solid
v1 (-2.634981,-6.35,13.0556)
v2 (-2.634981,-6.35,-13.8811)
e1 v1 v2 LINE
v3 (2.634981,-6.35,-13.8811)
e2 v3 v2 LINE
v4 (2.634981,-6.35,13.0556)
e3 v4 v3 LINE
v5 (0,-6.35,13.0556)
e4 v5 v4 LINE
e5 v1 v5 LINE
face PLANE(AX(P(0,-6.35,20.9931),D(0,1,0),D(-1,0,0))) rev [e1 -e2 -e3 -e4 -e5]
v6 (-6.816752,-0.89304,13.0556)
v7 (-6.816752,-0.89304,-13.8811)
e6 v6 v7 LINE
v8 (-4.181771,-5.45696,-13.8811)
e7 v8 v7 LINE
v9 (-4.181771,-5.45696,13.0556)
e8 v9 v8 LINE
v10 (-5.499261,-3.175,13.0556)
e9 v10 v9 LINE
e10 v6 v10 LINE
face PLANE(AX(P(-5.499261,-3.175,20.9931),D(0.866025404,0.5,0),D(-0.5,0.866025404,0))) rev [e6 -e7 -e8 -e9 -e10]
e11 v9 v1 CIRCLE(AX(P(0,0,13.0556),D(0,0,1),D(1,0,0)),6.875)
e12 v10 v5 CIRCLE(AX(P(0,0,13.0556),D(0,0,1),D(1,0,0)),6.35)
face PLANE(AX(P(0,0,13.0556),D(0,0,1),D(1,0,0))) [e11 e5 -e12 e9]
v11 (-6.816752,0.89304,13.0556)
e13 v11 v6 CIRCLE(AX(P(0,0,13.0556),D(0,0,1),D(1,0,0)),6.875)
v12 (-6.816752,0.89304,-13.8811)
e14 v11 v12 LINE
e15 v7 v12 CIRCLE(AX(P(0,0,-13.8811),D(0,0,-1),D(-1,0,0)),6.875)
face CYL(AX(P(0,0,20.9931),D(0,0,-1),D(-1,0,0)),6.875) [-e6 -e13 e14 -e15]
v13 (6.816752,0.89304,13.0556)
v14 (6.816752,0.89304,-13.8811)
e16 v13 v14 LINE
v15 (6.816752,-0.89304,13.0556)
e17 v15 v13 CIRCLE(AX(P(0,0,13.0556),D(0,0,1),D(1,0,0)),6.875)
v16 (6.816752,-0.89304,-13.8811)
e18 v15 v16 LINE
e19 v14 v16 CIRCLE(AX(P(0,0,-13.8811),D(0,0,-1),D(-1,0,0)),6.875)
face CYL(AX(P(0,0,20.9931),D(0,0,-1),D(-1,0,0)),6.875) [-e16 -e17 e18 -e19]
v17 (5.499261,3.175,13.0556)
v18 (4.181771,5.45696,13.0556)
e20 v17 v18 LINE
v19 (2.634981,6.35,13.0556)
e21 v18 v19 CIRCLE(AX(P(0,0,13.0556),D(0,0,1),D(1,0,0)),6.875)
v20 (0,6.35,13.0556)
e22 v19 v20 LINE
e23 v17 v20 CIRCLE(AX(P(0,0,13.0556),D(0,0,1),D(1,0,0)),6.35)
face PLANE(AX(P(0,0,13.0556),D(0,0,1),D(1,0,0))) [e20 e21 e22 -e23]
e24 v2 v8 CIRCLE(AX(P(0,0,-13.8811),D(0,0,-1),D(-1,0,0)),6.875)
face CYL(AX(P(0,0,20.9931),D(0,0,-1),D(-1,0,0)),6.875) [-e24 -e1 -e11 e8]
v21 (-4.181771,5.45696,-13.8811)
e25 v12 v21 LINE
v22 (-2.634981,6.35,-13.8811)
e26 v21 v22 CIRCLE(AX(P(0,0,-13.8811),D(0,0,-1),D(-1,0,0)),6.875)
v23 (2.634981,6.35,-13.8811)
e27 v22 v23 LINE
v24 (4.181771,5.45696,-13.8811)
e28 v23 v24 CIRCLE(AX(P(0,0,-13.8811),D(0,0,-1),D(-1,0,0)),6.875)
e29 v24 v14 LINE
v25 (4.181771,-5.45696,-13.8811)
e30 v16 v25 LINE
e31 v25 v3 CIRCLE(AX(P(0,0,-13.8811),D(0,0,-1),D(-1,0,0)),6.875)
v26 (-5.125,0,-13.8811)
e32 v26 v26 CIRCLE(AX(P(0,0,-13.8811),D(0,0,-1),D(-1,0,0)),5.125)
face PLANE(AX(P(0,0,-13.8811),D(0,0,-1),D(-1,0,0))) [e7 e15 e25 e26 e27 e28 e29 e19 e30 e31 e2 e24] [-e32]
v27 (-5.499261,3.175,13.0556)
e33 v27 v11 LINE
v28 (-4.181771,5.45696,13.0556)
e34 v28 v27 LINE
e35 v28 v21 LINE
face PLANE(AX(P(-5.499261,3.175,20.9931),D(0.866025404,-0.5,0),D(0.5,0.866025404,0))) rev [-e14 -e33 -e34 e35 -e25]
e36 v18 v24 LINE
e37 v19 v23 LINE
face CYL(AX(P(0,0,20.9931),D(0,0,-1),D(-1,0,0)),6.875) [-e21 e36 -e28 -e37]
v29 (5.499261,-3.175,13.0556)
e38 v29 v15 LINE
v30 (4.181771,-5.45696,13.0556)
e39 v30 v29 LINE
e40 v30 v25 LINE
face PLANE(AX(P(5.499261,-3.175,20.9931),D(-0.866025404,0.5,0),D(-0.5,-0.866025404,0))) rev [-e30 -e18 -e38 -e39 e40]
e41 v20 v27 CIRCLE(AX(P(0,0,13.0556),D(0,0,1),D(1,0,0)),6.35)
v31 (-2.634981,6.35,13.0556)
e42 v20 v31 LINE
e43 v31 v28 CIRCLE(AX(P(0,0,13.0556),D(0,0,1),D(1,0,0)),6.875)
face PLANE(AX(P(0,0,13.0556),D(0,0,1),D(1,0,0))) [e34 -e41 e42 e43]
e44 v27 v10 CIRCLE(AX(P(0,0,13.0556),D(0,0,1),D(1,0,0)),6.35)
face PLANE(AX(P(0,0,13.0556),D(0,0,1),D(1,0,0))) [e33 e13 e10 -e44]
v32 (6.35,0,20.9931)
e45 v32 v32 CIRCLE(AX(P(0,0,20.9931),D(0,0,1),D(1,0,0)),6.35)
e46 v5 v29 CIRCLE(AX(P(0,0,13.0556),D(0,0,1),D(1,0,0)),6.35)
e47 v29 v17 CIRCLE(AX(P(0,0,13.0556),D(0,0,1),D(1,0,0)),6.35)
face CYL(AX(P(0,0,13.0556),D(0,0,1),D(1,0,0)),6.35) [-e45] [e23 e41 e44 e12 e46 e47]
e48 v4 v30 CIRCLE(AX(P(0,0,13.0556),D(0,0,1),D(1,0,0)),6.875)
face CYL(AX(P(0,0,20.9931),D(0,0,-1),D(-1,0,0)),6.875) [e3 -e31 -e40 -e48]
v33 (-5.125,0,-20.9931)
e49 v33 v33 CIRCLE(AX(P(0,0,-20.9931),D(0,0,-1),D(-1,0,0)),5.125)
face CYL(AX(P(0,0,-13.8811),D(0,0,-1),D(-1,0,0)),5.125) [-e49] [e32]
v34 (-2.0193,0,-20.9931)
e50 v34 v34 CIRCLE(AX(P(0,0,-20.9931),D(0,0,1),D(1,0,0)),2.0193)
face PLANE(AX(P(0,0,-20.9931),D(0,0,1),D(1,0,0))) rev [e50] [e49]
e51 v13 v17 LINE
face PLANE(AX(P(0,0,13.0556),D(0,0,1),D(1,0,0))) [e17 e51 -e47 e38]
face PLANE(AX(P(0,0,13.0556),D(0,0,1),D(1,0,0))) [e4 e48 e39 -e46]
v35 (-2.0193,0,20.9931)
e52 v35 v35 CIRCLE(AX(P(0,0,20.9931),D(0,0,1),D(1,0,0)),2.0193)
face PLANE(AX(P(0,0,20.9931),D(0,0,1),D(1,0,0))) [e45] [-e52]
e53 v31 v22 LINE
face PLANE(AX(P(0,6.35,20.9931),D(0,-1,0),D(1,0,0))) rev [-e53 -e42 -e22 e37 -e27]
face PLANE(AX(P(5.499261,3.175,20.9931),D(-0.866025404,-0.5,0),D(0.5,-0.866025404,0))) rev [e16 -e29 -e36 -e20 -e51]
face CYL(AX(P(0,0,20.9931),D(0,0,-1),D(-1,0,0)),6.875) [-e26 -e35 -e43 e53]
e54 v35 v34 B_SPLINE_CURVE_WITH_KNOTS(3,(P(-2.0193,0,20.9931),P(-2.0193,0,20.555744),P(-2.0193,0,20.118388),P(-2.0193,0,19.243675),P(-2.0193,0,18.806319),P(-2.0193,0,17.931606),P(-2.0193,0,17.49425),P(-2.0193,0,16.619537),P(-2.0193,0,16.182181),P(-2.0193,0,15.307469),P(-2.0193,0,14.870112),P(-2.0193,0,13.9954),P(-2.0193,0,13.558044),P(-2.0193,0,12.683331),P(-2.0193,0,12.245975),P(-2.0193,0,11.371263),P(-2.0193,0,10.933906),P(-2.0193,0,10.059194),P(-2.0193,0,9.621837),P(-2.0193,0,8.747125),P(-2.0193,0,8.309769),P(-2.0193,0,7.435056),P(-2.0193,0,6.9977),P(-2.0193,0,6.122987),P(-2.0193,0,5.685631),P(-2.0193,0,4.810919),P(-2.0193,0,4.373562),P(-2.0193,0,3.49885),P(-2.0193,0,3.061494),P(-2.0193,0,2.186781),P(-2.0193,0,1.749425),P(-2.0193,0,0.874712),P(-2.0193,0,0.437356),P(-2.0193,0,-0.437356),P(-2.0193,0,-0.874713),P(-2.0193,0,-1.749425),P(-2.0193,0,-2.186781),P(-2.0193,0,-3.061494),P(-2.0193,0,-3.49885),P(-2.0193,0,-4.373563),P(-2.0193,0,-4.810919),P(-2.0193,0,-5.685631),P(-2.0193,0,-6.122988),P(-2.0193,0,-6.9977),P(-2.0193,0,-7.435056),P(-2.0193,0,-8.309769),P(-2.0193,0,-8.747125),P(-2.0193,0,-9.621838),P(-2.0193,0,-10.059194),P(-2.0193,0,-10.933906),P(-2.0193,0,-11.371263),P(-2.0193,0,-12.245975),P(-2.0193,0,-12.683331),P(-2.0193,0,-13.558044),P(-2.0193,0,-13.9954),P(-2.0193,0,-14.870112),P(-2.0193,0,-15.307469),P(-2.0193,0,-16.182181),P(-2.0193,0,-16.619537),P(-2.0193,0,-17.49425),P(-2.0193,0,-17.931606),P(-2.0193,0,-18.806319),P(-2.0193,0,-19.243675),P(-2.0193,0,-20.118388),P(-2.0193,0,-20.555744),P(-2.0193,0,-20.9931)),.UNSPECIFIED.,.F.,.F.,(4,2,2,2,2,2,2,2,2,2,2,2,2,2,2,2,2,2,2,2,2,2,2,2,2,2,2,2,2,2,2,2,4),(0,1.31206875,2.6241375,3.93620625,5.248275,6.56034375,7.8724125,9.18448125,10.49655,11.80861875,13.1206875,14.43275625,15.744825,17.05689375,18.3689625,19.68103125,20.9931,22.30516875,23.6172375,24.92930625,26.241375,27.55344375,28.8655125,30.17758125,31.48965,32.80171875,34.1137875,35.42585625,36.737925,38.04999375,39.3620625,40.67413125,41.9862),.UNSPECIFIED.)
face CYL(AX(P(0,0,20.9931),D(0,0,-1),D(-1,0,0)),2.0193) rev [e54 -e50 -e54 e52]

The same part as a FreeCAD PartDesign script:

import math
import FreeCAD as App
import Part
import Sketcher
from FreeCAD import Vector
Q = App.Units.Quantity

doc = App.newDocument("Part")
body = doc.addObject("PartDesign::Body", "Body")

# Sketch on XY plane
sketch1 = body.newObject("Sketcher::SketchObject", "Sketch")
sketch1.AttachmentSupport = (doc.getObject("XY_Plane"), [""])
sketch1.MapMode = "FlatFace"
sketch1.addGeometry(Part.ArcOfCircle(Part.Circle(Vector(0, 0, 0), Vector(0, 0, 1), 6.9), math.radians(0), math.radians(7.46)), False)
sketch1.addGeometry(Part.LineSegment(Vector(6.8, 0.9, 0), Vector(4.2, 5.5, 0)), False)
sketch1.addGeometry(Part.ArcOfCircle(Part.Circle(Vector(0, 0, 0), Vector(0, 0, 1), 6.9), math.radians(52.54), math.radians(67.46)), False)
sketch1.addGeometry(Part.LineSegment(Vector(2.6, 6.3, 0), Vector(-2.6, 6.3, 0)), False)
sketch1.addGeometry(Part.ArcOfCircle(Part.Circle(Vector(0, 0, 0), Vector(0, 0, 1), 6.9), math.radians(112.54), math.radians(127.46)), False)
sketch1.addGeometry(Part.LineSegment(Vector(-4.2, 5.5, 0), Vector(-6.8, 0.9, 0)), False)
sketch1.addGeometry(Part.ArcOfCircle(Part.Circle(Vector(0, 0, 0), Vector(0, 0, 1), 6.9), math.radians(172.54), math.radians(187.46)), False)
sketch1.addGeometry(Part.LineSegment(Vector(-6.8, -0.9, 0), Vector(-4.2, -5.5, 0)), False)
sketch1.addGeometry(Part.ArcOfCircle(Part.Circle(Vector(0, 0, 0), Vector(0, 0, 1), 6.9), math.radians(-127.46), math.radians(-112.54)), False)
sketch1.addGeometry(Part.LineSegment(Vector(-2.6, -6.3, 0), Vector(2.6, -6.3, 0)), False)
sketch1.addGeometry(Part.ArcOfCircle(Part.Circle(Vector(0, 0, 0), Vector(0, 0, 1), 6.9), math.radians(-67.46), math.radians(-52.54)), False)
sketch1.addGeometry(Part.LineSegment(Vector(4.2, -5.5, 0), Vector(6.8, -0.9, 0)), False)
sketch1.addGeometry(Part.ArcOfCircle(Part.Circle(Vector(0, 0, 0), Vector(0, 0, 1), 6.9), math.radians(-7.46), math.radians(0)), False)
sketch1.addGeometry(Part.Circle(Vector(0, 0, 0), Vector(0, 0, 1), 2), False)
sketch1.addConstraint(Sketcher.Constraint("Coincident", 0, 2, 1, 1))
sketch1.addConstraint(Sketcher.Constraint("Coincident", 1, 2, 2, 1))
sketch1.addConstraint(Sketcher.Constraint("Coincident", 2, 2, 3, 1))
sketch1.addConstraint(Sketcher.Constraint("Coincident", 3, 2, 4, 1))
sketch1.addConstraint(Sketcher.Constraint("Coincident", 4, 2, 5, 1))
sketch1.addConstraint(Sketcher.Constraint("Coincident", 5, 2, 6, 1))
sketch1.addConstraint(Sketcher.Constraint("Coincident", 6, 2, 7, 1))
sketch1.addConstraint(Sketcher.Constraint("Coincident", 7, 2, 8, 1))
sketch1.addConstraint(Sketcher.Constraint("Coincident", 8, 2, 9, 1))
sketch1.addConstraint(Sketcher.Constraint("Coincident", 9, 2, 10, 1))
sketch1.addConstraint(Sketcher.Constraint("Coincident", 10, 2, 11, 1))
sketch1.addConstraint(Sketcher.Constraint("Coincident", 11, 2, 12, 1))
sketch1.addConstraint(Sketcher.Constraint("Tangent", 12, 2, 0, 1))
sketch1.addConstraint(Sketcher.Constraint("Horizontal", 3))
sketch1.addConstraint(Sketcher.Constraint("Horizontal", 9))
sketch1.addConstraint(Sketcher.Constraint("Coincident", 0, 3, -1, 1))
sketch1.addConstraint(Sketcher.Constraint("Coincident", 2, 3, -1, 1))
sketch1.addConstraint(Sketcher.Constraint("Coincident", 4, 3, -1, 1))
sketch1.addConstraint(Sketcher.Constraint("Coincident", 6, 3, -1, 1))
sketch1.addConstraint(Sketcher.Constraint("Coincident", 8, 3, -1, 1))
sketch1.addConstraint(Sketcher.Constraint("Coincident", 10, 3, -1, 1))
sketch1.addConstraint(Sketcher.Constraint("Coincident", 13, 3, -1, 1))
sketch1.addConstraint(Sketcher.Constraint("Equal", 0, 2))
sketch1.addConstraint(Sketcher.Constraint("Equal", 2, 4))
sketch1.addConstraint(Sketcher.Constraint("Equal", 4, 6))
sketch1.addConstraint(Sketcher.Constraint("Equal", 6, 8))
sketch1.addConstraint(Sketcher.Constraint("Equal", 8, 10))
sketch1.addConstraint(Sketcher.Constraint("Equal", 10, 12))
sketch1.addConstraint(Sketcher.Constraint("PointOnObject", 12, 2, -1))
sketch1.addConstraint(Sketcher.Constraint("Parallel", 1, 7))
sketch1.addConstraint(Sketcher.Constraint("Parallel", 5, 11))
sketch1.addConstraint(Sketcher.Constraint("Horizontal", 1, 2, 4, 2))
sketch1.addConstraint(Sketcher.Constraint("Horizontal", 0, 2, 5, 2))
sketch1.addConstraint(Sketcher.Constraint("Horizontal", 7, 2, 10, 2))
sketch1.addConstraint(Sketcher.Constraint("Vertical", 5, 2, 6, 2))
sketch1.addConstraint(Sketcher.Constraint("Vertical", 3, 2, 8, 2))
sketch1.addConstraint(Sketcher.Constraint("Diameter", 13, Q("0.159 in")))
sketch1.addConstraint(Sketcher.Constraint("Angle", 1, Q("120 deg")))
sketch1.addConstraint(Sketcher.Constraint("DistanceY", -1, 1, 2, 2, Q("0.25 in")))
sketch1.addConstraint(Sketcher.Constraint("Radius", 0, 6.875))
sketch1.addConstraint(Sketcher.Constraint("Distance", 1, 5.269962))
pad1 = body.newObject("PartDesign::Pad", "Pad")
pad1.Profile = sketch1
pad1.Length = Q("1.653 in")
pad1.Midplane = True

# Sketch on XY plane
sketch2 = body.newObject("Sketcher::SketchObject", "Sketch001")
sketch2.AttachmentSupport = (doc.getObject("XY_Plane"), [""])
sketch2.MapMode = "FlatFace"
sketch2.AttachmentOffset = App.Placement(Vector(0, 0, 0.8265 * 25.4), App.Rotation())
sketch2.addGeometry(Part.Circle(Vector(0, 0, 0), Vector(0, 0, 1), 2), False)
sketch2.addConstraint(Sketcher.Constraint("Coincident", 0, 3, -1, 1))
sketch2.addConstraint(Sketcher.Constraint("Diameter", 0, Q("0.159 in")))
doc.recompute()
hole = body.newObject("PartDesign::Hole", "Hole")
hole.Profile = sketch2
hole.ThreadType = "None"
hole.Diameter = Q("0.159 in")
hole.DepthType = "Dimension"
hole.Depth = Q("0.47 in")
hole.DrillPoint = "Angled"
hole.DrillPointAngle = 118

# Sketch on XY plane
sketch3 = body.newObject("Sketcher::SketchObject", "Sketch002")
sketch3.AttachmentSupport = (doc.getObject("XY_Plane"), [""])
sketch3.MapMode = "FlatFace"
sketch3.AttachmentOffset = App.Placement(Vector(0, 0, -0.8265 * 25.4), App.Rotation())
sketch3.addGeometry(Part.Circle(Vector(0, 0, 0), Vector(0, 0, 1), 2), False)
sketch3.addConstraint(Sketcher.Constraint("Coincident", 0, 3, -1, 1))
sketch3.addConstraint(Sketcher.Constraint("Diameter", 0, Q("0.159 in")))
doc.recompute()
hole2 = body.newObject("PartDesign::Hole", "Hole001")
hole2.Profile = sketch3
hole2.ThreadType = "None"
hole2.Diameter = Q("0.159 in")
hole2.DepthType = "Dimension"
hole2.Depth = Q("0.47 in")
hole2.DrillPoint = "Angled"
hole2.DrillPointAngle = 118

# Sketch on XY plane
sketch4 = body.newObject("Sketcher::SketchObject", "Sketch003")
sketch4.AttachmentSupport = (doc.getObject("XY_Plane"), [""])
sketch4.MapMode = "FlatFace"
sketch4.AttachmentOffset = App.Placement(Vector(0, 0, 0.8265 * 25.4), App.Rotation())
sketch4.addGeometry(Part.Circle(Vector(0, 0, 0), Vector(0, 0, 1), 9), False)
sketch4.addGeometry(Part.Circle(Vector(0, 0, 0), Vector(0, 0, 1), 6), False)
sketch4.addConstraint(Sketcher.Constraint("Coincident", 0, 3, -1, 1))
sketch4.addConstraint(Sketcher.Constraint("Coincident", 1, 3, -1, 1))
sketch4.addConstraint(Sketcher.Constraint("Diameter", 0, Q("0.7 in")))
sketch4.addConstraint(Sketcher.Constraint("Diameter", 1, Q("0.5 in")))
pocket1 = body.newObject("PartDesign::Pocket", "Pocket")
pocket1.Profile = sketch4
pocket1.Length = Q("0.3125 in")

# Sketch on XY plane
sketch5 = body.newObject("Sketcher::SketchObject", "Sketch004")
sketch5.AttachmentSupport = (doc.getObject("XY_Plane"), [""])
sketch5.MapMode = "FlatFace"
sketch5.AttachmentOffset = App.Placement(Vector(0, 0, -0.8265 * 25.4), App.Rotation())
sketch5.addGeometry(Part.Circle(Vector(0, 0, 0), Vector(0, 0, 1), 8), False)
sketch5.addGeometry(Part.Circle(Vector(0, 0, 0), Vector(0, 0, 1), 5), False)
sketch5.addConstraint(Sketcher.Constraint("Coincident", 0, 3, -1, 1))
sketch5.addConstraint(Sketcher.Constraint("Coincident", 1, 3, -1, 1))
sketch5.addConstraint(Sketcher.Constraint("Diameter", 0, 15.33))
sketch5.addConstraint(Sketcher.Constraint("Diameter", 1, 10.25))
pocket2 = body.newObject("PartDesign::Pocket", "Pocket001")
pocket2.Profile = sketch5
pocket2.Length = Q("0.28 in")
pocket2.Reversed = True

doc.recompute()
